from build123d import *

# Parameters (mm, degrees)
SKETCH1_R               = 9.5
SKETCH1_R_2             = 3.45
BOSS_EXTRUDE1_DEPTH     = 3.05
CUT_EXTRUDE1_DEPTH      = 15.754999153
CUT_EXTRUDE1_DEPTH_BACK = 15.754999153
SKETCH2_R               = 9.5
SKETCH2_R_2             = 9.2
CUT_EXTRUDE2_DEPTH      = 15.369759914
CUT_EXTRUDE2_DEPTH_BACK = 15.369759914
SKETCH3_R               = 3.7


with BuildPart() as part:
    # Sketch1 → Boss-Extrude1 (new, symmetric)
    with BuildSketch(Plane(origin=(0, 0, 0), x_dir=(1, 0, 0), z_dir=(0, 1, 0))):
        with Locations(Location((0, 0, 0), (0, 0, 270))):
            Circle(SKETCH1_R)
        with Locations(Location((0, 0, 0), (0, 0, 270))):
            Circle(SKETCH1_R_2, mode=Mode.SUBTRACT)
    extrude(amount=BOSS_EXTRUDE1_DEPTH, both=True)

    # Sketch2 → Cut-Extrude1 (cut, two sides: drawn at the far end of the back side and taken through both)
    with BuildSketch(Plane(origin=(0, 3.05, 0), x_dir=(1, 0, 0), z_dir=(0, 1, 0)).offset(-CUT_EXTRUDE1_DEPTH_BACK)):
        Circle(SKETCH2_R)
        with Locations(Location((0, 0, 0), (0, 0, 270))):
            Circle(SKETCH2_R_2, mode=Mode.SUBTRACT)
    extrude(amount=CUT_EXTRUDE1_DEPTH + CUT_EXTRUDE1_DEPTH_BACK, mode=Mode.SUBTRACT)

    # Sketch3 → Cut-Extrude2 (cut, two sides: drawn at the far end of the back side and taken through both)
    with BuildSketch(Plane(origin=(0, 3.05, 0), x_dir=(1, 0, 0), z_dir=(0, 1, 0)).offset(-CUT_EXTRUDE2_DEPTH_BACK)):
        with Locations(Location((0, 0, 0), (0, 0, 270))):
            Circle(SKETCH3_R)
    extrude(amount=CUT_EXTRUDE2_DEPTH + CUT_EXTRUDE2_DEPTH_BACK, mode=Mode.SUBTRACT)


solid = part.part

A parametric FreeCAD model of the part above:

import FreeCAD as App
import Part
import Sketcher
from FreeCAD import Vector
Q = App.Units.Quantity

doc = App.newDocument("Part")
body = doc.addObject("PartDesign::Body", "Body")

# Sketch on XZ plane
sketch1 = body.newObject("Sketcher::SketchObject", "Sketch")
sketch1.AttachmentSupport = (doc.getObject("XZ_Plane"), [""])
sketch1.MapMode = "FlatFace"
sketch1.addGeometry(Part.Circle(Vector(0, 0, 0), Vector(0, 0, 1), 9.5), False)
sketch1.addGeometry(Part.Circle(Vector(0, 0, 0), Vector(0, 0, 1), 3.45), False)
sketch1.addConstraint(Sketcher.Constraint("Coincident", 0, 3, -1, 1))
sketch1.addConstraint(Sketcher.Constraint("Coincident", 1, 3, -1, 1))
sketch1.addConstraint(Sketcher.Constraint("Diameter", 0, Q("19 mm")))
sketch1.addConstraint(Sketcher.Constraint("Diameter", 1, Q("6.9 mm")))
pad1 = body.newObject("PartDesign::Pad", "Pad")
pad1.Profile = sketch1
pad1.Length = 6.1
pad1.Midplane = True

# Sketch on XZ plane
sketch2 = body.newObject("Sketcher::SketchObject", "Sketch001")
sketch2.AttachmentSupport = (doc.getObject("XZ_Plane"), [""])
sketch2.MapMode = "FlatFace"
sketch2.AttachmentOffset = App.Placement(Vector(0, 0, -3.05), App.Rotation())
sketch2.addGeometry(Part.Circle(Vector(0, 0, 0), Vector(0, 0, 1), 9.5), False)
sketch2.addGeometry(Part.Circle(Vector(0, 0, 0), Vector(0, 0, 1), 9.2), False)
sketch2.addConstraint(Sketcher.Constraint("Coincident", 0, 3, -1, 1))
sketch2.addConstraint(Sketcher.Constraint("Coincident", 1, 3, -1, 1))
sketch2.addConstraint(Sketcher.Constraint("Diameter", 0, Q("19 mm")))
sketch2.addConstraint(Sketcher.Constraint("Diameter", 1, Q("18.4 mm")))
pocket1 = body.newObject("PartDesign::Pocket", "Pocket")
pocket1.Profile = sketch2
pocket1.Type = "ThroughAll"
pocket1.Midplane = True

# Sketch on XZ plane
sketch3 = body.newObject("Sketcher::SketchObject", "Sketch002")
sketch3.AttachmentSupport = (doc.getObject("XZ_Plane"), [""])
sketch3.MapMode = "FlatFace"
sketch3.AttachmentOffset = App.Placement(Vector(0, 0, -3.05), App.Rotation())
sketch3.addGeometry(Part.Circle(Vector(0, 0, 0), Vector(0, 0, 1), 3.7), False)
sketch3.addConstraint(Sketcher.Constraint("Coincident", 0, 3, -1, 1))
sketch3.addConstraint(Sketcher.Constraint("Diameter", 0, Q("7.4 mm")))
pocket2 = body.newObject("PartDesign::Pocket", "Pocket001")
pocket2.Profile = sketch3
pocket2.Type = "ThroughAll"
pocket2.Midplane = True

doc.recompute()
